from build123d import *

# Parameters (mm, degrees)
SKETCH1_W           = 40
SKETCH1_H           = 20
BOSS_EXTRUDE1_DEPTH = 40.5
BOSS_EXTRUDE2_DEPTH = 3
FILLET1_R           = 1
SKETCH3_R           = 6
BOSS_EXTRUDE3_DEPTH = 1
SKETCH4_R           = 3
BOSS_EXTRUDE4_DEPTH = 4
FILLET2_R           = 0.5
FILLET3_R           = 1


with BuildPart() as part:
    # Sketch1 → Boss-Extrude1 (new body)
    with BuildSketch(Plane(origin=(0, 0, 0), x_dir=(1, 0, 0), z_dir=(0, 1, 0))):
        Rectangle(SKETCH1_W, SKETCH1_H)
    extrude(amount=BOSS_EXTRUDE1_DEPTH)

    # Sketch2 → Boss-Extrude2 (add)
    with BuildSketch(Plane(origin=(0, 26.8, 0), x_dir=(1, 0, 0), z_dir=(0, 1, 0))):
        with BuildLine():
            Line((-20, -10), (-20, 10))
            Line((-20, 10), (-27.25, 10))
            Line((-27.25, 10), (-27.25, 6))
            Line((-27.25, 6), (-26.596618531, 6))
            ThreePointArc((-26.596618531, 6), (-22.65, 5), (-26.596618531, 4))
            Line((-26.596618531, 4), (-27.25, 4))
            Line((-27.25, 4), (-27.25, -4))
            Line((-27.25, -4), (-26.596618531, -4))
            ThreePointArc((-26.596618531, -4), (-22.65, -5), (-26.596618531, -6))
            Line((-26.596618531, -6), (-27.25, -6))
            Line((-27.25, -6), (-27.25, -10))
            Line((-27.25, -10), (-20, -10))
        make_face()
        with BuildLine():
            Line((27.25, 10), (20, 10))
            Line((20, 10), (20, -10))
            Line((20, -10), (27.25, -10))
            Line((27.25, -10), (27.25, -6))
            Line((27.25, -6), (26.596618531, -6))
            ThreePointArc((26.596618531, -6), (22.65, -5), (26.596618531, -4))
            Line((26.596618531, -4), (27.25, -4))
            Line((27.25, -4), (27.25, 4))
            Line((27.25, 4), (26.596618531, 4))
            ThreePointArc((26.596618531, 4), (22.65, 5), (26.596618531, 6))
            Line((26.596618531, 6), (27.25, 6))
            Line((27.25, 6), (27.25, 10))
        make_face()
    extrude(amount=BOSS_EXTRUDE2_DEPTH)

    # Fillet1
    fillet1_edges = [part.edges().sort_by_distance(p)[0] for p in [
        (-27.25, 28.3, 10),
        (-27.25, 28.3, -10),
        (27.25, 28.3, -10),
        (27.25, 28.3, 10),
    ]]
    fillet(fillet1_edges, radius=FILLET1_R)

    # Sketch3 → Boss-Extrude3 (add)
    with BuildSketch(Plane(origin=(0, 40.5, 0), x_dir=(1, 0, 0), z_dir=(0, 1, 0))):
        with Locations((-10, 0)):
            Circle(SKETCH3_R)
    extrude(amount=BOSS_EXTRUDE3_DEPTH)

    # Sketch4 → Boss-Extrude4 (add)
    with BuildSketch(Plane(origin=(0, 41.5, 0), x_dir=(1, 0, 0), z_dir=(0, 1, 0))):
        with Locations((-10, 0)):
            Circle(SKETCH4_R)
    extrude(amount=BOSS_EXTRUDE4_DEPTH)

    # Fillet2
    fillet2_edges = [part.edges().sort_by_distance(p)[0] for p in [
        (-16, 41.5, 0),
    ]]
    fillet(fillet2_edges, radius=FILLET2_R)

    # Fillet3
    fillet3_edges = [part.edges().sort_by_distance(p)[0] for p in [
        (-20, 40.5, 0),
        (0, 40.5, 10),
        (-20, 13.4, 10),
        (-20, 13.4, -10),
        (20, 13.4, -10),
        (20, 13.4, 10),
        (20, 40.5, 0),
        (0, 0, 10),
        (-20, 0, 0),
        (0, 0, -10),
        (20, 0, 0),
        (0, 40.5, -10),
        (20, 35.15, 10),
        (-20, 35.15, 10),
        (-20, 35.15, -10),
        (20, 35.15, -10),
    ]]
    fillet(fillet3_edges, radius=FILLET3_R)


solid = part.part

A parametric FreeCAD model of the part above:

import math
import FreeCAD as App
import Part
import Sketcher
from FreeCAD import Vector
Q = App.Units.Quantity


def edges_at(feature, points):
    """Names of the edges that pass closest to the given points."""
    edges = feature.Shape.Edges
    near = lambda p: min(range(len(edges)), key=lambda i: edges[i].distToShape(Part.Vertex(*p))[0])
    return sorted({f"Edge{near(p) + 1}" for p in points})

doc = App.newDocument("Part")
params = doc.addObject("Spreadsheet::Sheet", "Params")
for row, (alias, value) in enumerate([
    ("sketch1_width", "40 mm"),
    ("sketch1_height", "20 mm"),
    ("pad1_length", "40.5 mm"),
    ("sketch2_radius", "2.1 mm"),
    ("sketch2_height", "20 mm"),
    ("sketch2_height2", "4 mm"),
    ("sketch2_height3", "8 mm"),
    ("sketch2_width", "7.25 mm"),
    ("pad2_length", "3 mm"),
    ("fillet_radius", "1 mm"),
    ("sketch3_diameter", "12 mm"),
    ("pad3_length", "1 mm"),
    ("sketch4_diameter", "6 mm"),
    ("pad4_length", "4 mm"),
    ("fillet2_radius", "0.5 mm"),
    ("fillet3_radius", "1 mm"),
], start=1):
    params.set(f"A{row}", alias)
    params.set(f"B{row}", "=" + value)
    params.setAlias(f"B{row}", alias)

body = doc.addObject("PartDesign::Body", "Body")

sketch1 = body.newObject("Sketcher::SketchObject", "Sketch")
sketch1.AttachmentSupport = (doc.getObject("XZ_Plane"), [""])
sketch1.MapMode = "FlatFace"
sketch1.addGeometry(Part.LineSegment(Vector(-20, -10, 0), Vector(-20, 10, 0)), False)
sketch1.addGeometry(Part.LineSegment(Vector(-20, 10, 0), Vector(20, 10, 0)), False)
sketch1.addGeometry(Part.LineSegment(Vector(20, 10, 0), Vector(20, -10, 0)), False)
sketch1.addGeometry(Part.LineSegment(Vector(20, -10, 0), Vector(-20, -10, 0)), False)
sketch1.addConstraint(Sketcher.Constraint("Coincident", 0, 2, 1, 1))
sketch1.addConstraint(Sketcher.Constraint("Coincident", 1, 2, 2, 1))
sketch1.addConstraint(Sketcher.Constraint("Coincident", 2, 2, 3, 1))
sketch1.addConstraint(Sketcher.Constraint("Coincident", 3, 2, 0, 1))
sketch1.addConstraint(Sketcher.Constraint("Vertical", 0))
sketch1.addConstraint(Sketcher.Constraint("Horizontal", 1))
sketch1.addConstraint(Sketcher.Constraint("Vertical", 2))
sketch1.addConstraint(Sketcher.Constraint("Horizontal", 3))
sketch1.addConstraint(Sketcher.Constraint("Symmetric", 0, 2, 2, 2, -1, 1))
sketch1.addConstraint(Sketcher.Constraint("DistanceX", 1, 1, 1, 2, Q("40 mm")))
sketch1.addConstraint(Sketcher.Constraint("DistanceY", 0, 1, 0, 2, Q("20 mm")))
sketch1.setExpression("Constraints[9]", "Params.sketch1_width")
sketch1.setExpression("Constraints[10]", "Params.sketch1_height")
pad1 = body.newObject("PartDesign::Pad", "Pad")
pad1.Profile = sketch1
pad1.setExpression("Length", "Params.pad1_length")
pad1.Reversed = True

sketch2 = body.newObject("Sketcher::SketchObject", "Sketch001")
sketch2.AttachmentSupport = (doc.getObject("XZ_Plane"), [""])
sketch2.MapMode = "FlatFace"
sketch2.AttachmentOffset = App.Placement(Vector(0, 0, -26.8), App.Rotation())
sketch2.addGeometry(Part.LineSegment(Vector(-20, 10, 0), Vector(-20, -10, 0)), False)
sketch2.addGeometry(Part.LineSegment(Vector(-20, -10, 0), Vector(-27.2, -10, 0)), False)
sketch2.addGeometry(Part.LineSegment(Vector(-27.2, -10, 0), Vector(-27.2, -6, 0)), False)
sketch2.addGeometry(Part.LineSegment(Vector(-27.2, -6, 0), Vector(-26.6, -6, 0)), False)
sketch2.addGeometry(Part.ArcOfCircle(Part.Circle(Vector(-24.8, -5, 0), Vector(0, 0, 1), 2.1), math.radians(-152), math.radians(152)), False)
sketch2.addGeometry(Part.LineSegment(Vector(-26.6, -4, 0), Vector(-27.2, -4, 0)), False)
sketch2.addGeometry(Part.LineSegment(Vector(-27.2, -4, 0), Vector(-27.2, 4, 0)), False)
sketch2.addGeometry(Part.LineSegment(Vector(-27.2, 4, 0), Vector(-26.6, 4, 0)), False)
sketch2.addGeometry(Part.ArcOfCircle(Part.Circle(Vector(-24.8, 5, 0), Vector(0, 0, 1), 2.1), math.radians(-152), math.radians(152)), False)
sketch2.addGeometry(Part.LineSegment(Vector(-26.6, 6, 0), Vector(-27.2, 6, 0)), False)
sketch2.addGeometry(Part.LineSegment(Vector(-27.2, 6, 0), Vector(-27.2, 10, 0)), False)
sketch2.addGeometry(Part.LineSegment(Vector(-27.2, 10, 0), Vector(-20, 10, 0)), False)
sketch2.addGeometry(Part.LineSegment(Vector(27.2, -10, 0), Vector(20, -10, 0)), False)
sketch2.addGeometry(Part.LineSegment(Vector(20, -10, 0), Vector(20, 10, 0)), False)
sketch2.addGeometry(Part.LineSegment(Vector(20, 10, 0), Vector(27.2, 10, 0)), False)
sketch2.addGeometry(Part.LineSegment(Vector(27.2, 10, 0), Vector(27.2, 6, 0)), False)
sketch2.addGeometry(Part.LineSegment(Vector(27.2, 6, 0), Vector(26.6, 6, 0)), False)
sketch2.addGeometry(Part.ArcOfCircle(Part.Circle(Vector(24.8, 5, 0), Vector(0, 0, 1), 2.1), math.radians(28), math.radians(332)), False)
sketch2.addGeometry(Part.LineSegment(Vector(26.6, 4, 0), Vector(27.2, 4, 0)), False)
sketch2.addGeometry(Part.LineSegment(Vector(27.2, 4, 0), Vector(27.2, -4, 0)), False)
sketch2.addGeometry(Part.LineSegment(Vector(27.2, -4, 0), Vector(26.6, -4, 0)), False)
sketch2.addGeometry(Part.ArcOfCircle(Part.Circle(Vector(24.8, -5, 0), Vector(0, 0, 1), 2.1), math.radians(28), math.radians(332)), False)
sketch2.addGeometry(Part.LineSegment(Vector(26.6, -6, 0), Vector(27.2, -6, 0)), False)
sketch2.addGeometry(Part.LineSegment(Vector(27.2, -6, 0), Vector(27.2, -10, 0)), False)
sketch2.addConstraint(Sketcher.Constraint("Coincident", 0, 2, 1, 1))
sketch2.addConstraint(Sketcher.Constraint("Coincident", 1, 2, 2, 1))
sketch2.addConstraint(Sketcher.Constraint("Coincident", 2, 2, 3, 1))
sketch2.addConstraint(Sketcher.Constraint("Coincident", 3, 2, 4, 1))
sketch2.addConstraint(Sketcher.Constraint("Coincident", 4, 2, 5, 1))
sketch2.addConstraint(Sketcher.Constraint("Coincident", 5, 2, 6, 1))
sketch2.addConstraint(Sketcher.Constraint("Coincident", 6, 2, 7, 1))
sketch2.addConstraint(Sketcher.Constraint("Coincident", 7, 2, 8, 1))
sketch2.addConstraint(Sketcher.Constraint("Coincident", 8, 2, 9, 1))
sketch2.addConstraint(Sketcher.Constraint("Coincident", 9, 2, 10, 1))
sketch2.addConstraint(Sketcher.Constraint("Coincident", 10, 2, 11, 1))
sketch2.addConstraint(Sketcher.Constraint("Coincident", 11, 2, 0, 1))
sketch2.addConstraint(Sketcher.Constraint("Coincident", 12, 2, 13, 1))
sketch2.addConstraint(Sketcher.Constraint("Coincident", 13, 2, 14, 1))
sketch2.addConstraint(Sketcher.Constraint("Coincident", 14, 2, 15, 1))
sketch2.addConstraint(Sketcher.Constraint("Coincident", 15, 2, 16, 1))
sketch2.addConstraint(Sketcher.Constraint("Coincident", 16, 2, 17, 1))
sketch2.addConstraint(Sketcher.Constraint("Coincident", 17, 2, 18, 1))
sketch2.addConstraint(Sketcher.Constraint("Coincident", 18, 2, 19, 1))
sketch2.addConstraint(Sketcher.Constraint("Coincident", 19, 2, 20, 1))
sketch2.addConstraint(Sketcher.Constraint("Coincident", 20, 2, 21, 1))
sketch2.addConstraint(Sketcher.Constraint("Coincident", 21, 2, 22, 1))
sketch2.addConstraint(Sketcher.Constraint("Coincident", 22, 2, 23, 1))
sketch2.addConstraint(Sketcher.Constraint("Coincident", 23, 2, 12, 1))
sketch2.addConstraint(Sketcher.Constraint("Vertical", 0))
sketch2.addConstraint(Sketcher.Constraint("Horizontal", 1))
sketch2.addConstraint(Sketcher.Constraint("Vertical", 2))
sketch2.addConstraint(Sketcher.Constraint("Horizontal", 3))
sketch2.addConstraint(Sketcher.Constraint("Horizontal", 5))
sketch2.addConstraint(Sketcher.Constraint("Vertical", 6))
sketch2.addConstraint(Sketcher.Constraint("Horizontal", 7))
sketch2.addConstraint(Sketcher.Constraint("Horizontal", 9))
sketch2.addConstraint(Sketcher.Constraint("Vertical", 10))
sketch2.addConstraint(Sketcher.Constraint("Horizontal", 11))
sketch2.addConstraint(Sketcher.Constraint("Horizontal", 12))
sketch2.addConstraint(Sketcher.Constraint("Vertical", 13))
sketch2.addConstraint(Sketcher.Constraint("Horizontal", 14))
sketch2.addConstraint(Sketcher.Constraint("Vertical", 15))
sketch2.addConstraint(Sketcher.Constraint("Horizontal", 16))
sketch2.addConstraint(Sketcher.Constraint("Horizontal", 18))
sketch2.addConstraint(Sketcher.Constraint("Vertical", 19))
sketch2.addConstraint(Sketcher.Constraint("Horizontal", 20))
sketch2.addConstraint(Sketcher.Constraint("Horizontal", 22))
sketch2.addConstraint(Sketcher.Constraint("Vertical", 23))
sketch2.addConstraint(Sketcher.Constraint("Equal", 4, 8))
sketch2.addConstraint(Sketcher.Constraint("Equal", 8, 17))
sketch2.addConstraint(Sketcher.Constraint("Equal", 17, 21))
sketch2.addConstraint(Sketcher.Constraint("Symmetric", 4, 3, 17, 3, -1, 1))
sketch2.addConstraint(Sketcher.Constraint("Symmetric", 8, 3, 21, 3, -1, 1))
sketch2.addConstraint(Sketcher.Constraint("Symmetric", 11, 2, 12, 2, -1, 1))
sketch2.addConstraint(Sketcher.Constraint("Symmetric", 1, 2, 14, 2, -1, 1))
sketch2.addConstraint(Sketcher.Constraint("Symmetric", 5, 2, 18, 2, -1, 1))
sketch2.addConstraint(Sketcher.Constraint("Symmetric", 9, 2, 22, 2, -1, 1))
sketch2.addConstraint(Sketcher.Constraint("Symmetric", 8, 3, 17, 3, -2))
sketch2.addConstraint(Sketcher.Constraint("Symmetric", 10, 2, 14, 2, -2))
sketch2.addConstraint(Sketcher.Constraint("Horizontal", 9, 2, 15, 2))
sketch2.addConstraint(Sketcher.Constraint("Horizontal", 7, 2, 17, 2))
sketch2.addConstraint(Sketcher.Constraint("Horizontal", 5, 2, 19, 2))
sketch2.addConstraint(Sketcher.Constraint("Horizontal", 3, 2, 21, 2))
sketch2.addConstraint(Sketcher.Constraint("Vertical", 3, 2, 4, 2))
sketch2.addConstraint(Sketcher.Constraint("Vertical", 2, 2, 5, 2))
sketch2.addConstraint(Sketcher.Constraint("Radius", 4, Q("2.1 mm")))
sketch2.addConstraint(Sketcher.Constraint("DistanceY", 0, 2, 0, 1, Q("20 mm")))
sketch2.addConstraint(Sketcher.Constraint("DistanceY", 2, 1, 2, 2, Q("4 mm")))
sketch2.addConstraint(Sketcher.Constraint("DistanceY", 6, 1, 6, 2, Q("8 mm")))
sketch2.addConstraint(Sketcher.Constraint("DistanceX", 0, 2, -1, 1, Q("20 mm")))
sketch2.addConstraint(Sketcher.Constraint("DistanceX", 1, 2, 21, 3, Q("52 mm")))
sketch2.addConstraint(Sketcher.Constraint("DistanceX", 1, 2, 1, 1, Q("7.25 mm")))
sketch2.setExpression("Constraints[61]", "Params.sketch2_radius")
sketch2.setExpression("Constraints[62]", "Params.sketch2_height")
sketch2.setExpression("Constraints[63]", "Params.sketch2_height2")
sketch2.setExpression("Constraints[64]", "Params.sketch2_height3")
sketch2.setExpression("Constraints[67]", "Params.sketch2_width")
pad2 = body.newObject("PartDesign::Pad", "Pad001")
pad2.Profile = sketch2
pad2.setExpression("Length", "Params.pad2_length")
pad2.Reversed = True
doc.recompute()

fillet = body.newObject("PartDesign::Fillet", "Fillet")
fillet.Base = (pad2, edges_at(pad2, [
    (-27.25, 28.3, 10),
    (-27.25, 28.3, -10),
    (27.25, 28.3, -10),
    (27.25, 28.3, 10),
]))
fillet.setExpression("Radius", "Params.fillet_radius")

sketch3 = body.newObject("Sketcher::SketchObject", "Sketch002")
sketch3.AttachmentSupport = (doc.getObject("XZ_Plane"), [""])
sketch3.MapMode = "FlatFace"
sketch3.AttachmentOffset = App.Placement(Vector(0, 0, -40.5), App.Rotation())
sketch3.addGeometry(Part.Circle(Vector(-10, 0, 0), Vector(0, 0, 1), 6), False)
sketch3.addConstraint(Sketcher.Constraint("PointOnObject", 0, 3, -1))
sketch3.addConstraint(Sketcher.Constraint("Diameter", 0, Q("12 mm")))
sketch3.addConstraint(Sketcher.Constraint("DistanceX", 0, 3, -1, 1, Q("10 mm")))
sketch3.setExpression("Constraints[1]", "Params.sketch3_diameter")
pad3 = body.newObject("PartDesign::Pad", "Pad002")
pad3.Profile = sketch3
pad3.setExpression("Length", "Params.pad3_length")
pad3.Reversed = True

sketch4 = body.newObject("Sketcher::SketchObject", "Sketch003")
sketch4.AttachmentSupport = (doc.getObject("XZ_Plane"), [""])
sketch4.MapMode = "FlatFace"
sketch4.AttachmentOffset = App.Placement(Vector(0, 0, -41.5), App.Rotation())
sketch4.addGeometry(Part.Circle(Vector(-10, 0, 0), Vector(0, 0, 1), 3), False)
sketch4.addConstraint(Sketcher.Constraint("PointOnObject", 0, 3, -1))
sketch4.addConstraint(Sketcher.Constraint("Diameter", 0, Q("6 mm")))
sketch4.addConstraint(Sketcher.Constraint("DistanceX", 0, 3, -1, 1, Q("10 mm")))
sketch4.setExpression("Constraints[1]", "Params.sketch4_diameter")
pad4 = body.newObject("PartDesign::Pad", "Pad003")
pad4.Profile = sketch4
pad4.setExpression("Length", "Params.pad4_length")
pad4.Reversed = True
doc.recompute()

fillet2 = body.newObject("PartDesign::Fillet", "Fillet001")
fillet2.Base = (pad4, edges_at(pad4, [(-16, 41.5, 0)]))
fillet2.setExpression("Radius", "Params.fillet2_radius")
doc.recompute()

fillet3 = body.newObject("PartDesign::Fillet", "Fillet002")
fillet3.Base = (fillet2, edges_at(fillet2, [
    (-20, 40.5, 0),
    (0, 40.5, 10),
    (-20, 13.4, 10),
    (-20, 13.4, -10),
    (20, 13.4, -10),
    (20, 13.4, 10),
    (20, 40.5, 0),
    (0, 0, 10),
    (-20, 0, 0),
    (0, 0, -10),
    (20, 0, 0),
    (0, 40.5, -10),
    (20, 35.15, 10),
    (-20, 35.15, 10),
    (-20, 35.15, -10),
    (20, 35.15, -10),
]))
fillet3.setExpression("Radius", "Params.fillet3_radius")

doc.recompute()
